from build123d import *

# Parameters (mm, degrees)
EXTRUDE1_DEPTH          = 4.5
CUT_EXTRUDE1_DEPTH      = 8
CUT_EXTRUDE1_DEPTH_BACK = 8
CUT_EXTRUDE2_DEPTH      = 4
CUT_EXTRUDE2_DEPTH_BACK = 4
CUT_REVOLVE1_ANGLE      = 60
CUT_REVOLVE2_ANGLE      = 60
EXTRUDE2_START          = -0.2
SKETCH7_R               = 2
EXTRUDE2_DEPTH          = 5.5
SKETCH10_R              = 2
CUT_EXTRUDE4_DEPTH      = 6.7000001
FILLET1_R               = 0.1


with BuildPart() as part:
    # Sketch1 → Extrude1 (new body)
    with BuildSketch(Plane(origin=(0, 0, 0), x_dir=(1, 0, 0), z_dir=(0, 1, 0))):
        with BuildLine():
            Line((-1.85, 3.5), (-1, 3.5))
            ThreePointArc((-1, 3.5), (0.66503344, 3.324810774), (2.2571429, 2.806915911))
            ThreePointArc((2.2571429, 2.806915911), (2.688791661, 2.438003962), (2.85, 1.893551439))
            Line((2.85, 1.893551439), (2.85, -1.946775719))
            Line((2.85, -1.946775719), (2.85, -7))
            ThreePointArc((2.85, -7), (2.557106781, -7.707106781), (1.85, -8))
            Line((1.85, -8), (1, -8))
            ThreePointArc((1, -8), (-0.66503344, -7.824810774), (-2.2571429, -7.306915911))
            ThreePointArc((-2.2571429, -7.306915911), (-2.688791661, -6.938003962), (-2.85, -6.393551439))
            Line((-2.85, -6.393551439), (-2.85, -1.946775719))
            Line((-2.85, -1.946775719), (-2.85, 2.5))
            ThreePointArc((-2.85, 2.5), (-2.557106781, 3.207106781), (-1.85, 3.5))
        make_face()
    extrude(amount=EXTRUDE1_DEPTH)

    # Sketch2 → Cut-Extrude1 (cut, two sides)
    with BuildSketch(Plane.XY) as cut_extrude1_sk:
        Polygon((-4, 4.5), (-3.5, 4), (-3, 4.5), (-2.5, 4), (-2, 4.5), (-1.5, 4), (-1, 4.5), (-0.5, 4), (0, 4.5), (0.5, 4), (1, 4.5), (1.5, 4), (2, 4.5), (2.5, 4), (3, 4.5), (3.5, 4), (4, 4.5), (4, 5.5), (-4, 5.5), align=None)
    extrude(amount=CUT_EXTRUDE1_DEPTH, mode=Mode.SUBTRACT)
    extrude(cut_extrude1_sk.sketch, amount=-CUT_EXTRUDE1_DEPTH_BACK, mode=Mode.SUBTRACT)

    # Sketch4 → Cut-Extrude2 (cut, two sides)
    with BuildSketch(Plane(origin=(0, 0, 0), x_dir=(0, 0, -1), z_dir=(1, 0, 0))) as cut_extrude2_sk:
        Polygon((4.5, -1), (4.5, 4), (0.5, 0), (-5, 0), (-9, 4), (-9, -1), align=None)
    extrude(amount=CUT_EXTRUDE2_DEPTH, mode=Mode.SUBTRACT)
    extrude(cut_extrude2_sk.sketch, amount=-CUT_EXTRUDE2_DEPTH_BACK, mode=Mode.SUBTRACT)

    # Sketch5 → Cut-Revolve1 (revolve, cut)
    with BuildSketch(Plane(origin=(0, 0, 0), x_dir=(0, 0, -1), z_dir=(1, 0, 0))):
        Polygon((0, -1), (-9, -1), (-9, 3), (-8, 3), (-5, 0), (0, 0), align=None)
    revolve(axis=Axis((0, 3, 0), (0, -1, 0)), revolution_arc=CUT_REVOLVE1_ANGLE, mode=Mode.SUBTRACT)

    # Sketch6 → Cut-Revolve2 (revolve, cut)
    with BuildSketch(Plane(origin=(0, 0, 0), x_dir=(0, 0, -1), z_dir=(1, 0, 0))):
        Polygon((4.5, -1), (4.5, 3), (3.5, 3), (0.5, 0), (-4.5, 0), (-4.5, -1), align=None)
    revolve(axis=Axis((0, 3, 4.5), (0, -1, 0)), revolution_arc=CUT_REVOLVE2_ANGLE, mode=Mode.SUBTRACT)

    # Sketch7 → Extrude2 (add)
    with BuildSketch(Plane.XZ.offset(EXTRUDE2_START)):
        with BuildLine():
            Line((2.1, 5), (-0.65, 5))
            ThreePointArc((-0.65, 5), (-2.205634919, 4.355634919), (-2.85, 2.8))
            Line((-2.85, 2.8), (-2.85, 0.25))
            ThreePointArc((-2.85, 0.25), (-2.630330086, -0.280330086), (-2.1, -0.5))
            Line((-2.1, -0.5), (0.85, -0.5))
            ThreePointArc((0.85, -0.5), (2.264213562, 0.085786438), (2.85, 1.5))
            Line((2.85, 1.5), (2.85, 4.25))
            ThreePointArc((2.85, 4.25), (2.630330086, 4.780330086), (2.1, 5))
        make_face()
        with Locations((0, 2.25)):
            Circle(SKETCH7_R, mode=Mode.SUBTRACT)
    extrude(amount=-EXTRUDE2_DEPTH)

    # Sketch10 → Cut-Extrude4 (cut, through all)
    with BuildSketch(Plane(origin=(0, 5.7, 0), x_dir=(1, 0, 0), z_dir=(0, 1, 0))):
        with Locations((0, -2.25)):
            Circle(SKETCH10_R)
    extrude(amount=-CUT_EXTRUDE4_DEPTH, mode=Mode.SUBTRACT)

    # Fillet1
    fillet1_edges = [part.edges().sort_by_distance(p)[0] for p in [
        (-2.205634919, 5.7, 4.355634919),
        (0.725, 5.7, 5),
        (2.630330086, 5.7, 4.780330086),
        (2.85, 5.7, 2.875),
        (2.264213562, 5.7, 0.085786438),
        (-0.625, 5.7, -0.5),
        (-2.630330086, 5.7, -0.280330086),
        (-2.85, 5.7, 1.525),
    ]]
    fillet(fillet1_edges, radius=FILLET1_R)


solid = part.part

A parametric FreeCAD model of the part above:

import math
import FreeCAD as App
import Part
import Sketcher
Q = App.Units.Quantity


def edges_at(feature, points):
    """Names of the edges that pass closest to the given points."""
    edges = feature.Shape.Edges
    near = lambda p: min(range(len(edges)), key=lambda i: edges[i].distToShape(Part.Vertex(*p))[0])
    return sorted({f"Edge{near(p) + 1}" for p in points})


def add_polygon(sketch, points):
    """Adds a closed chain of lines whose ends are joined by coincident constraints."""
    first, n = sketch.GeometryCount, len(points)
    for a, b in zip(points, points[1:] + points[:1]):
        sketch.addGeometry(Part.LineSegment(App.Vector(*a, 0), App.Vector(*b, 0)), False)
    for i in range(n):
        sketch.addConstraint(Sketcher.Constraint("Coincident", first + i, 2, first + (i + 1) % n, 1))

doc = App.newDocument("Part")
params = doc.addObject("Spreadsheet::Sheet", "Params")
for row, (alias, value) in enumerate([
    ("sketch1_radius", "1 mm"),
    ("sketch1_radius2", "8 mm"),
    ("sketch1_width", "0.85 mm"),
    ("pad1_length", "4.5 mm"),
    ("sketch2_width", "8 mm"),
    ("sketch2_height", "1 mm"),
    ("sketch3_width", "5 mm"),
    ("sketch3_height", "5.5 mm"),
    ("sketch3_height2", "13.5 mm"),
    ("sketch4_width", "1 mm"),
    ("sketch4_width2", "4 mm"),
    ("sketch4_height", "9 mm"),
    ("sketch4_height2", "5 mm"),
    ("groove_angle", "60 deg"),
    ("sketch5_width", "4 mm"),
    ("sketch5_width2", "1 mm"),
    ("sketch5_height", "5 mm"),
    ("sketch5_height2", "9 mm"),
    ("groove2_angle", "60 deg"),
    ("sketch6_diameter", "4 mm"),
    ("sketch6_radius", "2.2 mm"),
    ("sketch6_radius2", "0.75 mm"),
    ("pad2_length", "5.5 mm"),
    ("sketch7_diameter", "4 mm"),
    ("fillet_radius", "0.1 mm"),
], start=1):
    params.set(f"A{row}", alias)
    params.set(f"B{row}", "=" + value)
    params.setAlias(f"B{row}", alias)

body = doc.addObject("PartDesign::Body", "Body")

# Sketch on XZ plane
sketch1 = body.newObject("Sketcher::SketchObject", "Sketch")
sketch1.AttachmentSupport = (doc.getObject("XZ_Plane"), [""])
sketch1.MapMode = "FlatFace"
sketch1.addGeometry(Part.LineSegment(App.Vector(-1, -3.5, 0), App.Vector(-1.9, -3.5, 0)), False)
sketch1.addGeometry(Part.ArcOfCircle(Part.Circle(App.Vector(-1.8, -2.5, 0), App.Vector(0, 0, 1), 1), math.radians(-180), math.radians(-90)), False)
sketch1.addGeometry(Part.LineSegment(App.Vector(-2.9, -2.5, 0), App.Vector(-2.9, 6.4, 0)), False)
sketch1.addGeometry(Part.ArcOfCircle(Part.Circle(App.Vector(-1.9, 6.4, 0), App.Vector(0, 0, 1), 1), math.radians(114), math.radians(180)), False)
sketch1.addGeometry(Part.ArcOfCircle(Part.Circle(App.Vector(1, 0, 0), App.Vector(0, 0, 1), 8), math.radians(90), math.radians(114)), False)
sketch1.addGeometry(Part.LineSegment(App.Vector(1, 8, 0), App.Vector(1.9, 8, 0)), False)
sketch1.addGeometry(Part.ArcOfCircle(Part.Circle(App.Vector(1.8, 7, 0), App.Vector(0, 0, 1), 1), math.radians(0), math.radians(90)), False)
sketch1.addGeometry(Part.LineSegment(App.Vector(2.9, 7, 0), App.Vector(2.9, -1.9, 0)), False)
sketch1.addGeometry(Part.ArcOfCircle(Part.Circle(App.Vector(1.9, -1.9, 0), App.Vector(0, 0, 1), 1), math.radians(-66), math.radians(0)), False)
sketch1.addGeometry(Part.ArcOfCircle(Part.Circle(App.Vector(-1, 4.5, 0), App.Vector(0, 0, 1), 8), math.radians(-90), math.radians(-66)), False)
sketch1.addConstraint(Sketcher.Constraint("Tangent", 0, 2, 1, 2))
sketch1.addConstraint(Sketcher.Constraint("Tangent", 1, 1, 2, 1))
sketch1.addConstraint(Sketcher.Constraint("Tangent", 2, 2, 3, 2))
sketch1.addConstraint(Sketcher.Constraint("Tangent", 3, 1, 4, 2))
sketch1.addConstraint(Sketcher.Constraint("Tangent", 4, 1, 5, 1))
sketch1.addConstraint(Sketcher.Constraint("Tangent", 5, 2, 6, 2))
sketch1.addConstraint(Sketcher.Constraint("Tangent", 6, 1, 7, 1))
sketch1.addConstraint(Sketcher.Constraint("Tangent", 7, 2, 8, 2))
sketch1.addConstraint(Sketcher.Constraint("Tangent", 8, 1, 9, 2))
sketch1.addConstraint(Sketcher.Constraint("Tangent", 9, 1, 0, 1))
sketch1.addConstraint(Sketcher.Constraint("Horizontal", 0))
sketch1.addConstraint(Sketcher.Constraint("Vertical", 2))
sketch1.addConstraint(Sketcher.Constraint("Horizontal", 5))
sketch1.addConstraint(Sketcher.Constraint("Vertical", 7))
sketch1.addConstraint(Sketcher.Constraint("Equal", 1, 3))
sketch1.addConstraint(Sketcher.Constraint("Equal", 3, 6))
sketch1.addConstraint(Sketcher.Constraint("Equal", 6, 8))
sketch1.addConstraint(Sketcher.Constraint("Equal", 4, 9))
sketch1.addConstraint(Sketcher.Constraint("PointOnObject", 4, 3, -1))
sketch1.addConstraint(Sketcher.Constraint("Equal", 0, 5))
sketch1.addConstraint(Sketcher.Constraint("Radius", 1, Q("1 mm")))
sketch1.addConstraint(Sketcher.Constraint("Radius", 4, Q("8 mm")))
sketch1.addConstraint(Sketcher.Constraint("DistanceX", -1, 1, 4, 3, Q("1 mm")))
sketch1.addConstraint(Sketcher.Constraint("DistanceX", 9, 3, -1, 1, Q("1 mm")))
sketch1.addConstraint(Sketcher.Constraint("DistanceX", 0, 2, 0, 1, Q("0.85 mm")))
sketch1.addConstraint(Sketcher.Constraint("DistanceY", 1, 3, -1, 1, Q("2.5 mm")))
sketch1.setExpression("Constraints[20]", "Params.sketch1_radius")
sketch1.setExpression("Constraints[21]", "Params.sketch1_radius2")
sketch1.setExpression("Constraints[24]", "Params.sketch1_width")
pad1 = body.newObject("PartDesign::Pad", "Pad")
pad1.Profile = sketch1
pad1.setExpression("Length", "Params.pad1_length")
pad1.Reversed = True

# Sketch on XY plane
sketch2 = body.newObject("Sketcher::SketchObject", "Sketch001")
sketch2.AttachmentSupport = (doc.getObject("XY_Plane"), [""])
sketch2.MapMode = "FlatFace"
add_polygon(sketch2, [(-4, 4.5), (-3.5, 4), (-3, 4.5), (-2.5, 4), (-2, 4.5), (-1.5, 4), (-1, 4.5), (-0.5, 4), (0, 4.5), (0.5, 4), (1, 4.5), (1.5, 4), (2, 4.5), (2.5, 4), (3, 4.5), (3.5, 4), (4, 4.5), (4, 5.5), (-4, 5.5)])  # lines 0-18
sketch2.addConstraint(Sketcher.Constraint("Vertical", 16))
sketch2.addConstraint(Sketcher.Constraint("Horizontal", 17))
sketch2.addConstraint(Sketcher.Constraint("Vertical", 18))
sketch2.addConstraint(Sketcher.Constraint("Symmetric", 6, 2, 8, 2, -2))
sketch2.addConstraint(Sketcher.Constraint("Symmetric", 5, 2, 9, 2, -2))
sketch2.addConstraint(Sketcher.Constraint("Symmetric", 4, 2, 10, 2, -2))
sketch2.addConstraint(Sketcher.Constraint("Symmetric", 3, 2, 11, 2, -2))
sketch2.addConstraint(Sketcher.Constraint("Symmetric", 2, 2, 12, 2, -2))
sketch2.addConstraint(Sketcher.Constraint("Symmetric", 1, 2, 13, 2, -2))
sketch2.addConstraint(Sketcher.Constraint("Symmetric", 0, 2, 14, 2, -2))
sketch2.addConstraint(Sketcher.Constraint("Symmetric", 15, 2, 18, 2, -2))
sketch2.addConstraint(Sketcher.Constraint("PointOnObject", 7, 2, -2))
sketch2.addConstraint(Sketcher.Constraint("Perpendicular", 0, 1))
sketch2.addConstraint(Sketcher.Constraint("Perpendicular", 1, 2))
sketch2.addConstraint(Sketcher.Constraint("Perpendicular", 2, 3))
sketch2.addConstraint(Sketcher.Constraint("Perpendicular", 3, 4))
sketch2.addConstraint(Sketcher.Constraint("Perpendicular", 4, 5))
sketch2.addConstraint(Sketcher.Constraint("Perpendicular", 5, 6))
sketch2.addConstraint(Sketcher.Constraint("Perpendicular", 6, 7))
sketch2.addConstraint(Sketcher.Constraint("Perpendicular", 7, 8))
sketch2.addConstraint(Sketcher.Constraint("Horizontal", 0, 2, 2, 2))
sketch2.addConstraint(Sketcher.Constraint("Horizontal", 1, 2, 3, 2))
sketch2.addConstraint(Sketcher.Constraint("Horizontal", 2, 2, 4, 2))
sketch2.addConstraint(Sketcher.Constraint("Horizontal", 3, 2, 5, 2))
sketch2.addConstraint(Sketcher.Constraint("Horizontal", 4, 2, 6, 2))
sketch2.addConstraint(Sketcher.Constraint("Horizontal", 5, 2, 7, 2))
sketch2.addConstraint(Sketcher.Constraint("Horizontal", 13, 2, 15, 2))
sketch2.addConstraint(Sketcher.Constraint("DistanceX", 17, 2, 17, 1, Q("8 mm")))
sketch2.addConstraint(Sketcher.Constraint("DistanceY", 16, 1, 16, 2, Q("1 mm")))
sketch2.addConstraint(Sketcher.Constraint("DistanceY", -1, 1, 0, 2, Q("4 mm")))
sketch2.setExpression("Constraints[46]", "Params.sketch2_width")
sketch2.setExpression("Constraints[47]", "Params.sketch2_height")
pocket1 = body.newObject("PartDesign::Pocket", "Pocket")
pocket1.Profile = sketch2
pocket1.Type = "ThroughAll"
pocket1.Midplane = True

# Sketch on YZ plane
sketch3 = body.newObject("Sketcher::SketchObject", "Sketch002")
sketch3.AttachmentSupport = (doc.getObject("YZ_Plane"), [""])
sketch3.MapMode = "FlatFace"
add_polygon(sketch3, [(-1, -4), (4, -4), (0, 0), (0, 5), (4, 9), (-1, 9)])  # lines 0-5
sketch3.addConstraint(Sketcher.Constraint("Horizontal", 0))
sketch3.addConstraint(Sketcher.Constraint("Vertical", 2))
sketch3.addConstraint(Sketcher.Constraint("Horizontal", 4))
sketch3.addConstraint(Sketcher.Constraint("Vertical", 5))
sketch3.addConstraint(Sketcher.Constraint("PointOnObject", 1, 2, -2))
sketch3.addConstraint(Sketcher.Constraint("Perpendicular", 1, 3))
sketch3.addConstraint(Sketcher.Constraint("Vertical", 0, 2, 3, 2))
sketch3.addConstraint(Sketcher.Constraint("Equal", 1, 3))
sketch3.addConstraint(Sketcher.Constraint("DistanceX", 0, 1, 0, 2, Q("5 mm")))
sketch3.addConstraint(Sketcher.Constraint("DistanceY", 2, 1, 2, 2, Q("5.5 mm")))
sketch3.addConstraint(Sketcher.Constraint("DistanceY", 5, 2, 5, 1, Q("13.5 mm")))
sketch3.addConstraint(Sketcher.Constraint("DistanceY", -1, 1, 2, 2, Q("5 mm")))
sketch3.setExpression("Constraints[14]", "Params.sketch3_width")
sketch3.setExpression("Constraints[15]", "Params.sketch3_height")
sketch3.setExpression("Constraints[16]", "Params.sketch3_height2")
pocket2 = body.newObject("PartDesign::Pocket", "Pocket001")
pocket2.Profile = sketch3
pocket2.Type = "ThroughAll"
pocket2.Midplane = True

# Sketch on YZ plane
sketch4 = body.newObject("Sketcher::SketchObject", "Sketch003")
sketch4.AttachmentSupport = (doc.getObject("YZ_Plane"), [""])
sketch4.MapMode = "FlatFace"
add_polygon(sketch4, [(-1, 9), (-1, 0), (0, 0), (0, 5), (3, 8), (3, 9)])  # lines 0-5
sketch4.addConstraint(Sketcher.Constraint("Vertical", 0))
sketch4.addConstraint(Sketcher.Constraint("Horizontal", 1))
sketch4.addConstraint(Sketcher.Constraint("Vertical", 2))
sketch4.addConstraint(Sketcher.Constraint("Vertical", 4))
sketch4.addConstraint(Sketcher.Constraint("Horizontal", 5))
sketch4.addConstraint(Sketcher.Constraint("Coincident", 1, 2, -1, 1))
sketch4.addConstraint(Sketcher.Constraint("Equal", 1, 4))
sketch4.addConstraint(Sketcher.Constraint("DistanceX", 1, 1, 1, 2, Q("1 mm")))
sketch4.addConstraint(Sketcher.Constraint("DistanceX", 5, 2, 5, 1, Q("4 mm")))
sketch4.addConstraint(Sketcher.Constraint("DistanceY", 0, 2, 0, 1, Q("9 mm")))
sketch4.addConstraint(Sketcher.Constraint("DistanceY", 2, 1, 2, 2, Q("5 mm")))
sketch4.setExpression("Constraints[13]", "Params.sketch4_width")
sketch4.setExpression("Constraints[14]", "Params.sketch4_width2")
sketch4.setExpression("Constraints[15]", "Params.sketch4_height")
sketch4.setExpression("Constraints[16]", "Params.sketch4_height2")
groove = body.newObject("PartDesign::Groove", "Groove")
groove.Profile = sketch4
groove.ReferenceAxis = (sketch4, ["H_Axis"])
groove.setExpression("Angle", "Params.groove_angle")
groove.Reversed = True

# Sketch on YZ plane
sketch5 = body.newObject("Sketcher::SketchObject", "Sketch004")
sketch5.AttachmentSupport = (doc.getObject("YZ_Plane"), [""])
sketch5.MapMode = "FlatFace"
add_polygon(sketch5, [(-1, -4.5), (3, -4.5), (3, -3.5), (0, -0.5), (0, 4.5), (-1, 4.5)])  # lines 0-5
sketch5.addGeometry(Part.LineSegment(App.Vector(3, 4.5, 0), App.Vector(-1, 4.5, 0)), True)  # axis
sketch5.addConstraint(Sketcher.Constraint("Horizontal", 0))
sketch5.addConstraint(Sketcher.Constraint("Vertical", 1))
sketch5.addConstraint(Sketcher.Constraint("Vertical", 3))
sketch5.addConstraint(Sketcher.Constraint("Horizontal", 4))
sketch5.addConstraint(Sketcher.Constraint("Vertical", 5))
sketch5.addConstraint(Sketcher.Constraint("Horizontal", 6))
sketch5.addConstraint(Sketcher.Constraint("Coincident", 6, 2, 4, 2))
sketch5.addConstraint(Sketcher.Constraint("Symmetric", 0, 2, 6, 1, -1))
sketch5.addConstraint(Sketcher.Constraint("PointOnObject", 2, 2, -2))
sketch5.addConstraint(Sketcher.Constraint("Equal", 4, 1))
sketch5.addConstraint(Sketcher.Constraint("DistanceX", 0, 1, 0, 2, Q("4 mm")))
sketch5.addConstraint(Sketcher.Constraint("DistanceX", 4, 2, 4, 1, Q("1 mm")))
sketch5.addConstraint(Sketcher.Constraint("DistanceY", 3, 1, 3, 2, Q("5 mm")))
sketch5.addConstraint(Sketcher.Constraint("DistanceY", 5, 2, 5, 1, Q("9 mm")))
sketch5.setExpression("Constraints[16]", "Params.sketch5_width")
sketch5.setExpression("Constraints[17]", "Params.sketch5_width2")
sketch5.setExpression("Constraints[18]", "Params.sketch5_height")
sketch5.setExpression("Constraints[19]", "Params.sketch5_height2")
groove2 = body.newObject("PartDesign::Groove", "Groove001")
groove2.Profile = sketch5
groove2.ReferenceAxis = (sketch5, ["Axis0"])
groove2.setExpression("Angle", "Params.groove2_angle")

# Sketch on XZ plane
sketch6 = body.newObject("Sketcher::SketchObject", "Sketch005")
sketch6.AttachmentSupport = (doc.getObject("XZ_Plane"), [""])
sketch6.MapMode = "FlatFace"
sketch6.AttachmentOffset = App.Placement(App.Vector(0, 0, -0.2), App.Rotation())
sketch6.addGeometry(Part.LineSegment(App.Vector(2.1, 5, 0), App.Vector(-0.7, 5, 0)), False)
sketch6.addGeometry(Part.ArcOfCircle(Part.Circle(App.Vector(-0.7, 2.8, 0), App.Vector(0, 0, 1), 2.2), math.radians(90), math.radians(180)), False)
sketch6.addGeometry(Part.LineSegment(App.Vector(-2.9, 2.8, 0), App.Vector(-2.9, 0.2, 0)), False)
sketch6.addGeometry(Part.ArcOfCircle(Part.Circle(App.Vector(-2.1, 0.2, 0), App.Vector(0, 0, 1), 0.8), math.radians(180), math.radians(270)), False)
sketch6.addGeometry(Part.LineSegment(App.Vector(-2.1, -0.5, 0), App.Vector(0.8, -0.5, 0)), False)
sketch6.addGeometry(Part.ArcOfCircle(Part.Circle(App.Vector(0.8, 1.5, 0), App.Vector(0, 0, 1), 2), math.radians(-90), math.radians(0)), False)
sketch6.addGeometry(Part.LineSegment(App.Vector(2.9, 1.5, 0), App.Vector(2.9, 4.2, 0)), False)
sketch6.addGeometry(Part.ArcOfCircle(Part.Circle(App.Vector(2.1, 4.2, 0), App.Vector(0, 0, 1), 0.8), math.radians(0), math.radians(90)), False)
sketch6.addGeometry(Part.Circle(App.Vector(0, 2.2, 0), App.Vector(0, 0, 1), 2), False)
sketch6.addConstraint(Sketcher.Constraint("Tangent", 0, 2, 1, 1))
sketch6.addConstraint(Sketcher.Constraint("Tangent", 1, 2, 2, 1))
sketch6.addConstraint(Sketcher.Constraint("Tangent", 2, 2, 3, 1))
sketch6.addConstraint(Sketcher.Constraint("Tangent", 3, 2, 4, 1))
sketch6.addConstraint(Sketcher.Constraint("Tangent", 4, 2, 5, 1))
sketch6.addConstraint(Sketcher.Constraint("Tangent", 5, 2, 6, 1))
sketch6.addConstraint(Sketcher.Constraint("Tangent", 6, 2, 7, 1))
sketch6.addConstraint(Sketcher.Constraint("Tangent", 7, 2, 0, 1))
sketch6.addConstraint(Sketcher.Constraint("Horizontal", 0))
sketch6.addConstraint(Sketcher.Constraint("Vertical", 2))
sketch6.addConstraint(Sketcher.Constraint("Horizontal", 4))
sketch6.addConstraint(Sketcher.Constraint("Vertical", 6))
sketch6.addConstraint(Sketcher.Constraint("Equal", 3, 7))
sketch6.addConstraint(Sketcher.Constraint("Equal", 5, 8))
sketch6.addConstraint(Sketcher.Constraint("PointOnObject", 8, 3, -2))
sketch6.addConstraint(Sketcher.Constraint("Equal", 0, 6))
sketch6.addConstraint(Sketcher.Constraint("Diameter", 8, Q("4 mm")))
sketch6.addConstraint(Sketcher.Constraint("Radius", 1, Q("2.2 mm")))
sketch6.addConstraint(Sketcher.Constraint("Radius", 3, Q("0.75 mm")))
sketch6.addConstraint(Sketcher.Constraint("DistanceY", -1, 1, 0, 2, Q("5 mm")))
sketch6.addConstraint(Sketcher.Constraint("DistanceY", 3, 3, 7, 3, Q("4 mm")))
sketch6.addConstraint(Sketcher.Constraint("DistanceY", 3, 3, 8, 3, Q("2 mm")))
sketch6.addConstraint(Sketcher.Constraint("DistanceX", 3, 3, -1, 1, Q("2.1 mm")))
sketch6.setExpression("Constraints[16]", "Params.sketch6_diameter")
sketch6.setExpression("Constraints[17]", "Params.sketch6_radius")
sketch6.setExpression("Constraints[18]", "Params.sketch6_radius2")
pad2 = body.newObject("PartDesign::Pad", "Pad001")
pad2.Profile = sketch6
pad2.setExpression("Length", "Params.pad2_length")
pad2.Reversed = True

# Sketch on XZ plane
sketch7 = body.newObject("Sketcher::SketchObject", "Sketch006")
sketch7.AttachmentSupport = (doc.getObject("XZ_Plane"), [""])
sketch7.MapMode = "FlatFace"
sketch7.AttachmentOffset = App.Placement(App.Vector(0, 0, -5.7), App.Rotation())
sketch7.addGeometry(Part.Circle(App.Vector(0, 2.2, 0), App.Vector(0, 0, 1), 2), False)
sketch7.addConstraint(Sketcher.Constraint("PointOnObject", 0, 3, -2))
sketch7.addConstraint(Sketcher.Constraint("Diameter", 0, Q("4 mm")))
sketch7.addConstraint(Sketcher.Constraint("DistanceY", -1, 1, 0, 3, Q("2.25 mm")))
sketch7.setExpression("Constraints[1]", "Params.sketch7_diameter")
pocket3 = body.newObject("PartDesign::Pocket", "Pocket002")
pocket3.Profile = sketch7
pocket3.Type = "ThroughAll"
pocket3.Reversed = True
doc.recompute()

fillet = body.newObject("PartDesign::Fillet", "Fillet")
fillet.Base = (pocket3, edges_at(pocket3, [
    (-2.206, 5.7, 4.356),
    (0.725, 5.7, 5),
    (2.63, 5.7, 4.78),
    (2.85, 5.7, 2.875),
    (2.264, 5.7, 0.086),
    (-0.625, 5.7, -0.5),
    (-2.63, 5.7, -0.28),
    (-2.85, 5.7, 1.525),
]))
fillet.setExpression("Radius", "Params.fillet_radius")

doc.recompute()
